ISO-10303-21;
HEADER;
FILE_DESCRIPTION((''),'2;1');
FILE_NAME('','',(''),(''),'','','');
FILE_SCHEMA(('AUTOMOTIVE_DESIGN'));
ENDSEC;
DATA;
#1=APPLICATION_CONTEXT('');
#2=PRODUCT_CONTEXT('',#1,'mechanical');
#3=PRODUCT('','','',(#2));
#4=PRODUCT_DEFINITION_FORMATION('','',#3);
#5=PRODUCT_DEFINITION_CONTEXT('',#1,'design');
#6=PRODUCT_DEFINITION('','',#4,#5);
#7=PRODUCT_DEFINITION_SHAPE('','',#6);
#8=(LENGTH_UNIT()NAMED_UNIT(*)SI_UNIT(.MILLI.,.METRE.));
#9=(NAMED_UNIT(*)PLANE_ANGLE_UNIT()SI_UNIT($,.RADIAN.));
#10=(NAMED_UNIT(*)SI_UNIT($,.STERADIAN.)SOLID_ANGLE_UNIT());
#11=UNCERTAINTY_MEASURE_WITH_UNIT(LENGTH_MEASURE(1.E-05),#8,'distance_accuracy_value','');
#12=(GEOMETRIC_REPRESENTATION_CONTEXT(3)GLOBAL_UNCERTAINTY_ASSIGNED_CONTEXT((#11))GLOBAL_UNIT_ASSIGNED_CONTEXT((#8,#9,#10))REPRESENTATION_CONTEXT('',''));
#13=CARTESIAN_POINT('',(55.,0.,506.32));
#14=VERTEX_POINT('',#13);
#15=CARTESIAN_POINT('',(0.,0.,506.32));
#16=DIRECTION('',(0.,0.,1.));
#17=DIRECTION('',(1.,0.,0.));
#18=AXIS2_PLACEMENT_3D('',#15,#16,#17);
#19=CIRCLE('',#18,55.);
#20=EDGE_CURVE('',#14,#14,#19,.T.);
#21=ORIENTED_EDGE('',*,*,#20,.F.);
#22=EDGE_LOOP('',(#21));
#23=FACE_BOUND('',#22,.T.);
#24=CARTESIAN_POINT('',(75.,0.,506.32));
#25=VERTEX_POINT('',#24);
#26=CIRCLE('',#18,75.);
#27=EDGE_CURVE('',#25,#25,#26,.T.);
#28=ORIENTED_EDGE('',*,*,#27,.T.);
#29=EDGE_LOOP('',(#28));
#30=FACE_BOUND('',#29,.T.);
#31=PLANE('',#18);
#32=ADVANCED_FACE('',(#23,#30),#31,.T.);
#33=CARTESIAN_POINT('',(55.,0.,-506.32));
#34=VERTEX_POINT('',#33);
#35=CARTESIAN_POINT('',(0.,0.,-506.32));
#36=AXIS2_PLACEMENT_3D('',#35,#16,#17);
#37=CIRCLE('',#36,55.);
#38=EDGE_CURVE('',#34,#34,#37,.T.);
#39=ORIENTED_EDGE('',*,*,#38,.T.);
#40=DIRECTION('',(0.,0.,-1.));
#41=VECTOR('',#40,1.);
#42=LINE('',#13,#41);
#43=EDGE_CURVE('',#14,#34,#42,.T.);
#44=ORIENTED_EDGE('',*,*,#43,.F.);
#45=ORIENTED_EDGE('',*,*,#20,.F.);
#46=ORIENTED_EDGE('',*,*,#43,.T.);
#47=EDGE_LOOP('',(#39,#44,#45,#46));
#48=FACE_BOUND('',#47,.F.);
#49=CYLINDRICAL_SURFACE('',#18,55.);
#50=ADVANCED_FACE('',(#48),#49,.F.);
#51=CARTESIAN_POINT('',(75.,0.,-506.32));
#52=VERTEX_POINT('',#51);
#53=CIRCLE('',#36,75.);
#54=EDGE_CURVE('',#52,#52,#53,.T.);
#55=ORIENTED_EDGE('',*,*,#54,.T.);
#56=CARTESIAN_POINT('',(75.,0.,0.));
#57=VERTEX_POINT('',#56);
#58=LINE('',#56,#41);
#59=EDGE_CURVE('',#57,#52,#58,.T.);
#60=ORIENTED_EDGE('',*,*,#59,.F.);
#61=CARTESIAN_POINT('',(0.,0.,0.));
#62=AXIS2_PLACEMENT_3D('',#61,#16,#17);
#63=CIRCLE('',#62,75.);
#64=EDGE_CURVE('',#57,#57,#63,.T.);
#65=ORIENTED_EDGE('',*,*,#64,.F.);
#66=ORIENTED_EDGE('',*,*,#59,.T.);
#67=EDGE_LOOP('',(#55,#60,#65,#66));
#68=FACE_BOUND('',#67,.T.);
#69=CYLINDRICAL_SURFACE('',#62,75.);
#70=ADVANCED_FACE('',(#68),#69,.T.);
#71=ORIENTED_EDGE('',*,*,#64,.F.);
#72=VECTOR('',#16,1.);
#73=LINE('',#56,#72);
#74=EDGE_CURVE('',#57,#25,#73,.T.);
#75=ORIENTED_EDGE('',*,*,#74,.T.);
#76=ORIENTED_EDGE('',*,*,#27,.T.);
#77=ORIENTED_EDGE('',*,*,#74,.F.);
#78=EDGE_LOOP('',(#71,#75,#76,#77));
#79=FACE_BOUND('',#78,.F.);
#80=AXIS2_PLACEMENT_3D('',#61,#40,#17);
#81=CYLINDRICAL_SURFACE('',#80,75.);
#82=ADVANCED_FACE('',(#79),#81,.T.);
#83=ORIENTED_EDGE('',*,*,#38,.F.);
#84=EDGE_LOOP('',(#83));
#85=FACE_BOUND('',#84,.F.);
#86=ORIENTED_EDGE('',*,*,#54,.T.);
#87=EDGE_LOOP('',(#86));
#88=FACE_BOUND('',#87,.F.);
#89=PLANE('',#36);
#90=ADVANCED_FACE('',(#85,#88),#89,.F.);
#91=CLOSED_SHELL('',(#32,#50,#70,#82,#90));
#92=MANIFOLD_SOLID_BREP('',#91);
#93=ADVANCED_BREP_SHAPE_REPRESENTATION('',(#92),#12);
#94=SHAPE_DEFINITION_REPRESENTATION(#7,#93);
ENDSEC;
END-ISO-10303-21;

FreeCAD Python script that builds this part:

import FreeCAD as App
import Part
import Sketcher
from FreeCAD import Vector
Q = App.Units.Quantity

doc = App.newDocument("Part")
body = doc.addObject("PartDesign::Body", "Body")

sketch1 = body.newObject("Sketcher::SketchObject", "Sketch")
sketch1.AttachmentSupport = (doc.getObject("XY_Plane"), [""])
sketch1.MapMode = "FlatFace"
sketch1.addGeometry(Part.Circle(Vector(0, 0, 0), Vector(0, 0, 1), 75), False)
sketch1.addConstraint([
    Sketcher.Constraint("Coincident", 0, 3, -1, 1),
    Sketcher.Constraint("Diameter", 0, Q("150 mm")),
])
pad1 = body.newObject("PartDesign::Pad", "Pad")
pad1.Profile = sketch1
pad1.Length = 1012.64
pad1.Midplane = True

sketch2 = body.newObject("Sketcher::SketchObject", "Sketch001")
sketch2.AttachmentSupport = (doc.getObject("XY_Plane"), [""])
sketch2.MapMode = "FlatFace"
sketch2.AttachmentOffset = App.Placement(Vector(0, 0, 506.32), App.Rotation())
sketch2.addGeometry(Part.Circle(Vector(0, 0, 0), Vector(0, 0, 1), 55), False)
sketch2.addConstraint([
    Sketcher.Constraint("Coincident", 0, 3, -1, 1),
    Sketcher.Constraint("Diameter", 0, Q("110 mm")),
])
pocket1 = body.newObject("PartDesign::Pocket", "Pocket")
pocket1.Profile = sketch2
pocket1.Type = "ThroughAll"

doc.recompute()
